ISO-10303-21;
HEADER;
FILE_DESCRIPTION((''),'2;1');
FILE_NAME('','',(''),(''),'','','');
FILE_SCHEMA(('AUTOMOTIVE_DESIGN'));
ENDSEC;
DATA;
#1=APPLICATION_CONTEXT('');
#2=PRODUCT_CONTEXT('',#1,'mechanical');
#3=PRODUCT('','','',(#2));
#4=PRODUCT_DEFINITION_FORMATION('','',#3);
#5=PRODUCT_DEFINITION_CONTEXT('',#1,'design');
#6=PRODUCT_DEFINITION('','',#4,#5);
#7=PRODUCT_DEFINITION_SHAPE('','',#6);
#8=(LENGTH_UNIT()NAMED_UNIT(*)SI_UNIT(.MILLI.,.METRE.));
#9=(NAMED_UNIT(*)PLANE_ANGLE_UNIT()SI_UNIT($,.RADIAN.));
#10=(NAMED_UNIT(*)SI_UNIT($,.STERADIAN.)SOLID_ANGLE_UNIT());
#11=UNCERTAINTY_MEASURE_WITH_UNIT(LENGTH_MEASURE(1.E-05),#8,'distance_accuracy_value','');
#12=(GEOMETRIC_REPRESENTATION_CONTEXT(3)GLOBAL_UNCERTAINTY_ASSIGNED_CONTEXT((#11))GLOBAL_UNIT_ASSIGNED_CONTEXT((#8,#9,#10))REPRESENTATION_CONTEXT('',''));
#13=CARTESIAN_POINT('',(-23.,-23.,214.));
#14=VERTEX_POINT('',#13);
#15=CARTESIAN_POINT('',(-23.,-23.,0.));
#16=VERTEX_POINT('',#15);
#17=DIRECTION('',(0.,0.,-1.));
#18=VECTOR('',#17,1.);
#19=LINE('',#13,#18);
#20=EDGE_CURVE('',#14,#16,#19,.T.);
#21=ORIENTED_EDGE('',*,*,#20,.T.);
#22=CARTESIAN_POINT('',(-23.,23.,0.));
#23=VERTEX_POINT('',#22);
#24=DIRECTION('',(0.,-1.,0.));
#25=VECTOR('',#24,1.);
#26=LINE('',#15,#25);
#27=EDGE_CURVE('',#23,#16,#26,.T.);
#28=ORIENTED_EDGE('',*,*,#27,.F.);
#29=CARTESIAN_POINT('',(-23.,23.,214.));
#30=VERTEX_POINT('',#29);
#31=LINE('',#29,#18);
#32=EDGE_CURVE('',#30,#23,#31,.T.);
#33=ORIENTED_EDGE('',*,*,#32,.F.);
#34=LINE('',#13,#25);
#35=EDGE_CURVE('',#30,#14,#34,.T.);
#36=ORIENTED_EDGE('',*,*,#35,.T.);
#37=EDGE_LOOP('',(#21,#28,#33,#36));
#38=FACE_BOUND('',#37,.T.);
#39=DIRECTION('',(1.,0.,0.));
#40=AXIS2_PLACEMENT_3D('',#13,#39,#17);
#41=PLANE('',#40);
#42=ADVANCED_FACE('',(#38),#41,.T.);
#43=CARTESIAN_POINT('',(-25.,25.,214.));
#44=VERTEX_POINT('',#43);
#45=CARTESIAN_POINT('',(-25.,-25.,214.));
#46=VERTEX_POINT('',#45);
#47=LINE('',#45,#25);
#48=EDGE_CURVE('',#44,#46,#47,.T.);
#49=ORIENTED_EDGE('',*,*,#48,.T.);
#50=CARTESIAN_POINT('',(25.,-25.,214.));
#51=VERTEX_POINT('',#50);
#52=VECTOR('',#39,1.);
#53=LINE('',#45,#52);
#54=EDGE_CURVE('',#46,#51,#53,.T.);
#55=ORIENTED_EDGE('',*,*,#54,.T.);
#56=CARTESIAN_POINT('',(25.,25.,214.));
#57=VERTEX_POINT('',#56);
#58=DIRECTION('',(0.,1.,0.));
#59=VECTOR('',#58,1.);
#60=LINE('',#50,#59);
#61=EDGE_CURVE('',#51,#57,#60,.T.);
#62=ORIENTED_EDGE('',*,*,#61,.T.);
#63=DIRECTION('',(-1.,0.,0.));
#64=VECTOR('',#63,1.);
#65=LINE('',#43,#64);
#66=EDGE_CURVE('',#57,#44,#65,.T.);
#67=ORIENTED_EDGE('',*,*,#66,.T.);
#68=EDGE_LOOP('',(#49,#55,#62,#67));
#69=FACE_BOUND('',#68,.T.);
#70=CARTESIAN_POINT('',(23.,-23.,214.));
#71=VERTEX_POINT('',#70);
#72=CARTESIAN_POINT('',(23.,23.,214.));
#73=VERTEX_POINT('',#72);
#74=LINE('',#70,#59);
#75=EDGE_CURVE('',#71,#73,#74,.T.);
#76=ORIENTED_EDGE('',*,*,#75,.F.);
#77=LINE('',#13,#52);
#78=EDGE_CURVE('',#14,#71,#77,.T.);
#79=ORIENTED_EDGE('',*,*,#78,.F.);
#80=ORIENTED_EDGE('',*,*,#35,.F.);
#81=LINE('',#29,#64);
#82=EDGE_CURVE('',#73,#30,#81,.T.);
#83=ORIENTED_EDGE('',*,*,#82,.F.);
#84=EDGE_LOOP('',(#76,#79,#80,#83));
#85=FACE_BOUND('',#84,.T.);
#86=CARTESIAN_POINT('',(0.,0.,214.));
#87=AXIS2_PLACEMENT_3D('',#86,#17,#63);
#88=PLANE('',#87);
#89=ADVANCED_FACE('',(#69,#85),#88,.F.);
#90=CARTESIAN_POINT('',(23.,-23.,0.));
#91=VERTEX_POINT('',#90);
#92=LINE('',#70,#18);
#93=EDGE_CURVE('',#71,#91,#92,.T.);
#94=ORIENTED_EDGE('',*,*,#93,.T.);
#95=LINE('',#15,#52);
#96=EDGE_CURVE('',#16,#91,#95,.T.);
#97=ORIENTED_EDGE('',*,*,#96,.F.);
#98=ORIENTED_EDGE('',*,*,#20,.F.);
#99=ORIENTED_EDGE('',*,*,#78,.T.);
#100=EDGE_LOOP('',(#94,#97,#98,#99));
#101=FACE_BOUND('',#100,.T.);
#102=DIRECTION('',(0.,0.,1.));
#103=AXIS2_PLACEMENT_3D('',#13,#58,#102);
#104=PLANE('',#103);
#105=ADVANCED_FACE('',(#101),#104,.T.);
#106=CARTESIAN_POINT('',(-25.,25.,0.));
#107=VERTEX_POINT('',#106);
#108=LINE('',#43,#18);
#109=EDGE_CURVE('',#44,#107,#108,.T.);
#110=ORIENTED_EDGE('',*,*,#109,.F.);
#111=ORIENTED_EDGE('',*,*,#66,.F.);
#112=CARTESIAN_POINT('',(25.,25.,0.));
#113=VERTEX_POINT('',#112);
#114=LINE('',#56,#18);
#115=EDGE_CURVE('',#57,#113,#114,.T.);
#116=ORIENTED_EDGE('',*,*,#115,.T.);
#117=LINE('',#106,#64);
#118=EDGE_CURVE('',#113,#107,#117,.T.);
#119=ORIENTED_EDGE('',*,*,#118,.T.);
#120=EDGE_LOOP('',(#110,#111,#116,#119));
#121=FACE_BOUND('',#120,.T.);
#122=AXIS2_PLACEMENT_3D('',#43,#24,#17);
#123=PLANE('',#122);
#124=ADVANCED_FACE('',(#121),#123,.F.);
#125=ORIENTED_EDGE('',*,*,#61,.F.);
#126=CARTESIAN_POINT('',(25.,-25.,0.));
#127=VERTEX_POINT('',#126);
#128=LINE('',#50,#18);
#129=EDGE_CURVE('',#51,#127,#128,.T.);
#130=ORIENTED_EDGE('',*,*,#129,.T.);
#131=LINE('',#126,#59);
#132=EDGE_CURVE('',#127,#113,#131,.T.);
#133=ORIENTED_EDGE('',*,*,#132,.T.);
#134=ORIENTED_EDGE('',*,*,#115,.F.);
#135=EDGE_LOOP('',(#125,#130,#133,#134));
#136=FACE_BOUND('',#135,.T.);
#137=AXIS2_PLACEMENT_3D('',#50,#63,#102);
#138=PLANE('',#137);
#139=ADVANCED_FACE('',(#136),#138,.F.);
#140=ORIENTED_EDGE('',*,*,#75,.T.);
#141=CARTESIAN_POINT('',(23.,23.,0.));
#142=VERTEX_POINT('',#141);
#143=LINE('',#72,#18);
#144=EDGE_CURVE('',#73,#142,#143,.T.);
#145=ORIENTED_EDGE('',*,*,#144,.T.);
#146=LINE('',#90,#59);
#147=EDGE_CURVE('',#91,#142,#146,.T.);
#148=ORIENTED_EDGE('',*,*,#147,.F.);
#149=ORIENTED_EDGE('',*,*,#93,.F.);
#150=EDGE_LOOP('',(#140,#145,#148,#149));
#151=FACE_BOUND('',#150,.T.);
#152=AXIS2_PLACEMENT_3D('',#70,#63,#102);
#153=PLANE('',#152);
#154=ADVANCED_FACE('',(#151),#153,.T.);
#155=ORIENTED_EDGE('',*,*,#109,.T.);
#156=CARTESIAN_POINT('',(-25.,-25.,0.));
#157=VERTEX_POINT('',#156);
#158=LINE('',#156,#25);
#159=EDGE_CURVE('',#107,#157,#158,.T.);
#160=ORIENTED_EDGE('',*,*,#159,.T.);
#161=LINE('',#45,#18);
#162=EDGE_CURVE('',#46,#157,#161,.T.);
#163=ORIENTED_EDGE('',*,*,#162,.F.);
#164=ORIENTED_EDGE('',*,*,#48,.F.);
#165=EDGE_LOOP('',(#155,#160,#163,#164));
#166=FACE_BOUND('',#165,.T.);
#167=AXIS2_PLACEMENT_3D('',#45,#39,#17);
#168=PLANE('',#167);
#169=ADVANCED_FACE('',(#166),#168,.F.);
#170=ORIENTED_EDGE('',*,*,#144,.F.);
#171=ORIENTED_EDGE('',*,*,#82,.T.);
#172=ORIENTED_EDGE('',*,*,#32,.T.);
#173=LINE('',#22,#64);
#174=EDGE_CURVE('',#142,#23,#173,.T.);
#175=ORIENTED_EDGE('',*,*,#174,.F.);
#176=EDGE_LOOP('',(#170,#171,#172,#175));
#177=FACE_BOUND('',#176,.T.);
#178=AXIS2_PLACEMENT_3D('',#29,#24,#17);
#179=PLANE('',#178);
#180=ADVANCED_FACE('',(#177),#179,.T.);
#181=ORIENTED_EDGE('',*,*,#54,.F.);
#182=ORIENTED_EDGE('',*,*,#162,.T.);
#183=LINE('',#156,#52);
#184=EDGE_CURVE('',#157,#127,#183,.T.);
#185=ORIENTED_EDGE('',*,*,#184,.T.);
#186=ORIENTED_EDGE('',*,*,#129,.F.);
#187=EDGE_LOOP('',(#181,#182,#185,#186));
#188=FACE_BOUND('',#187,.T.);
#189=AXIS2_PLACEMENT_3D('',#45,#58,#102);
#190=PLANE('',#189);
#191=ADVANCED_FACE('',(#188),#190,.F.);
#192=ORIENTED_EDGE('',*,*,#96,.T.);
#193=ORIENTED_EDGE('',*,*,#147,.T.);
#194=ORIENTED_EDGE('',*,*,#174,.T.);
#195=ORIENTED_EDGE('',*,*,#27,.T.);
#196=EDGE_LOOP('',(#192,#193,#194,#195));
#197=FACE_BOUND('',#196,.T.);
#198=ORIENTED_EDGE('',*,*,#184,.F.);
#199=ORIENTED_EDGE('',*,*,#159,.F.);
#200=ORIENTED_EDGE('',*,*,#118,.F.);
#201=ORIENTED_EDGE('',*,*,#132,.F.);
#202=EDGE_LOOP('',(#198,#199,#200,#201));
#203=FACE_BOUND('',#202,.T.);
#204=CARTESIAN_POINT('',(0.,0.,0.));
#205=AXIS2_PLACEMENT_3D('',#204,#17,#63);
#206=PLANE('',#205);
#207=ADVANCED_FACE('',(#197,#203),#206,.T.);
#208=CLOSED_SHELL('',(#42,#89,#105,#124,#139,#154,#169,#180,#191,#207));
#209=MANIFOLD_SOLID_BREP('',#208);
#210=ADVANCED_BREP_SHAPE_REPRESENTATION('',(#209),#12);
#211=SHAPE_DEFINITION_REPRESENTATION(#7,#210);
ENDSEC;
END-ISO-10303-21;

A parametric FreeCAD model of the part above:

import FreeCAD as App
import Part
import Sketcher

V = App.Vector


def add_polygon(sketch, points):
    """Adds a closed chain of lines whose ends are joined by coincident constraints."""
    first, n = sketch.GeometryCount, len(points)
    for a, b in zip(points, points[1:] + points[:1]):
        sketch.addGeometry(Part.LineSegment(App.Vector(*a, 0), App.Vector(*b, 0)), False)
    for i in range(n):
        sketch.addConstraint(Sketcher.Constraint("Coincident", first + i, 2, first + (i + 1) % n, 1))

doc = App.newDocument("Part")
body = doc.addObject("PartDesign::Body", "Body")

sketch1 = body.newObject("Sketcher::SketchObject", "Sketch")
sketch1.AttachmentSupport = (doc.getObject("XY_Plane"), [""])
sketch1.MapMode = "FlatFace"
add_polygon(sketch1, [(-25, 25), (-25, -25), (25, -25), (25, 25)])
add_polygon(sketch1, [(23, -23), (-23, -23), (-23, 23), (23, 23)])
sketch1.addConstraint([
    Sketcher.Constraint("Vertical", 0),
    Sketcher.Constraint("Horizontal", 1),
    Sketcher.Constraint("Vertical", 2),
    Sketcher.Constraint("Horizontal", 3),
    Sketcher.Constraint("Horizontal", 4),
    Sketcher.Constraint("Vertical", 5),
    Sketcher.Constraint("Horizontal", 6),
    Sketcher.Constraint("Vertical", 7),
    Sketcher.Constraint("Symmetric", 0, 2, 2, 2, -1, 1),
    Sketcher.Constraint("Symmetric", 4, 2, 6, 2, -1, 1),
    Sketcher.Constraint("Equal", 3, 0),
    Sketcher.Constraint("Equal", 6, 5),
    Sketcher.Constraint("DistanceX", 1, 1, 1, 2, 50.0),
    Sketcher.Constraint("DistanceX", 4, 2, 4, 1, 46.0),
])
pad1 = body.newObject("PartDesign::Pad", "Pad")
pad1.Profile = sketch1
pad1.Length = 214

doc.recompute()
